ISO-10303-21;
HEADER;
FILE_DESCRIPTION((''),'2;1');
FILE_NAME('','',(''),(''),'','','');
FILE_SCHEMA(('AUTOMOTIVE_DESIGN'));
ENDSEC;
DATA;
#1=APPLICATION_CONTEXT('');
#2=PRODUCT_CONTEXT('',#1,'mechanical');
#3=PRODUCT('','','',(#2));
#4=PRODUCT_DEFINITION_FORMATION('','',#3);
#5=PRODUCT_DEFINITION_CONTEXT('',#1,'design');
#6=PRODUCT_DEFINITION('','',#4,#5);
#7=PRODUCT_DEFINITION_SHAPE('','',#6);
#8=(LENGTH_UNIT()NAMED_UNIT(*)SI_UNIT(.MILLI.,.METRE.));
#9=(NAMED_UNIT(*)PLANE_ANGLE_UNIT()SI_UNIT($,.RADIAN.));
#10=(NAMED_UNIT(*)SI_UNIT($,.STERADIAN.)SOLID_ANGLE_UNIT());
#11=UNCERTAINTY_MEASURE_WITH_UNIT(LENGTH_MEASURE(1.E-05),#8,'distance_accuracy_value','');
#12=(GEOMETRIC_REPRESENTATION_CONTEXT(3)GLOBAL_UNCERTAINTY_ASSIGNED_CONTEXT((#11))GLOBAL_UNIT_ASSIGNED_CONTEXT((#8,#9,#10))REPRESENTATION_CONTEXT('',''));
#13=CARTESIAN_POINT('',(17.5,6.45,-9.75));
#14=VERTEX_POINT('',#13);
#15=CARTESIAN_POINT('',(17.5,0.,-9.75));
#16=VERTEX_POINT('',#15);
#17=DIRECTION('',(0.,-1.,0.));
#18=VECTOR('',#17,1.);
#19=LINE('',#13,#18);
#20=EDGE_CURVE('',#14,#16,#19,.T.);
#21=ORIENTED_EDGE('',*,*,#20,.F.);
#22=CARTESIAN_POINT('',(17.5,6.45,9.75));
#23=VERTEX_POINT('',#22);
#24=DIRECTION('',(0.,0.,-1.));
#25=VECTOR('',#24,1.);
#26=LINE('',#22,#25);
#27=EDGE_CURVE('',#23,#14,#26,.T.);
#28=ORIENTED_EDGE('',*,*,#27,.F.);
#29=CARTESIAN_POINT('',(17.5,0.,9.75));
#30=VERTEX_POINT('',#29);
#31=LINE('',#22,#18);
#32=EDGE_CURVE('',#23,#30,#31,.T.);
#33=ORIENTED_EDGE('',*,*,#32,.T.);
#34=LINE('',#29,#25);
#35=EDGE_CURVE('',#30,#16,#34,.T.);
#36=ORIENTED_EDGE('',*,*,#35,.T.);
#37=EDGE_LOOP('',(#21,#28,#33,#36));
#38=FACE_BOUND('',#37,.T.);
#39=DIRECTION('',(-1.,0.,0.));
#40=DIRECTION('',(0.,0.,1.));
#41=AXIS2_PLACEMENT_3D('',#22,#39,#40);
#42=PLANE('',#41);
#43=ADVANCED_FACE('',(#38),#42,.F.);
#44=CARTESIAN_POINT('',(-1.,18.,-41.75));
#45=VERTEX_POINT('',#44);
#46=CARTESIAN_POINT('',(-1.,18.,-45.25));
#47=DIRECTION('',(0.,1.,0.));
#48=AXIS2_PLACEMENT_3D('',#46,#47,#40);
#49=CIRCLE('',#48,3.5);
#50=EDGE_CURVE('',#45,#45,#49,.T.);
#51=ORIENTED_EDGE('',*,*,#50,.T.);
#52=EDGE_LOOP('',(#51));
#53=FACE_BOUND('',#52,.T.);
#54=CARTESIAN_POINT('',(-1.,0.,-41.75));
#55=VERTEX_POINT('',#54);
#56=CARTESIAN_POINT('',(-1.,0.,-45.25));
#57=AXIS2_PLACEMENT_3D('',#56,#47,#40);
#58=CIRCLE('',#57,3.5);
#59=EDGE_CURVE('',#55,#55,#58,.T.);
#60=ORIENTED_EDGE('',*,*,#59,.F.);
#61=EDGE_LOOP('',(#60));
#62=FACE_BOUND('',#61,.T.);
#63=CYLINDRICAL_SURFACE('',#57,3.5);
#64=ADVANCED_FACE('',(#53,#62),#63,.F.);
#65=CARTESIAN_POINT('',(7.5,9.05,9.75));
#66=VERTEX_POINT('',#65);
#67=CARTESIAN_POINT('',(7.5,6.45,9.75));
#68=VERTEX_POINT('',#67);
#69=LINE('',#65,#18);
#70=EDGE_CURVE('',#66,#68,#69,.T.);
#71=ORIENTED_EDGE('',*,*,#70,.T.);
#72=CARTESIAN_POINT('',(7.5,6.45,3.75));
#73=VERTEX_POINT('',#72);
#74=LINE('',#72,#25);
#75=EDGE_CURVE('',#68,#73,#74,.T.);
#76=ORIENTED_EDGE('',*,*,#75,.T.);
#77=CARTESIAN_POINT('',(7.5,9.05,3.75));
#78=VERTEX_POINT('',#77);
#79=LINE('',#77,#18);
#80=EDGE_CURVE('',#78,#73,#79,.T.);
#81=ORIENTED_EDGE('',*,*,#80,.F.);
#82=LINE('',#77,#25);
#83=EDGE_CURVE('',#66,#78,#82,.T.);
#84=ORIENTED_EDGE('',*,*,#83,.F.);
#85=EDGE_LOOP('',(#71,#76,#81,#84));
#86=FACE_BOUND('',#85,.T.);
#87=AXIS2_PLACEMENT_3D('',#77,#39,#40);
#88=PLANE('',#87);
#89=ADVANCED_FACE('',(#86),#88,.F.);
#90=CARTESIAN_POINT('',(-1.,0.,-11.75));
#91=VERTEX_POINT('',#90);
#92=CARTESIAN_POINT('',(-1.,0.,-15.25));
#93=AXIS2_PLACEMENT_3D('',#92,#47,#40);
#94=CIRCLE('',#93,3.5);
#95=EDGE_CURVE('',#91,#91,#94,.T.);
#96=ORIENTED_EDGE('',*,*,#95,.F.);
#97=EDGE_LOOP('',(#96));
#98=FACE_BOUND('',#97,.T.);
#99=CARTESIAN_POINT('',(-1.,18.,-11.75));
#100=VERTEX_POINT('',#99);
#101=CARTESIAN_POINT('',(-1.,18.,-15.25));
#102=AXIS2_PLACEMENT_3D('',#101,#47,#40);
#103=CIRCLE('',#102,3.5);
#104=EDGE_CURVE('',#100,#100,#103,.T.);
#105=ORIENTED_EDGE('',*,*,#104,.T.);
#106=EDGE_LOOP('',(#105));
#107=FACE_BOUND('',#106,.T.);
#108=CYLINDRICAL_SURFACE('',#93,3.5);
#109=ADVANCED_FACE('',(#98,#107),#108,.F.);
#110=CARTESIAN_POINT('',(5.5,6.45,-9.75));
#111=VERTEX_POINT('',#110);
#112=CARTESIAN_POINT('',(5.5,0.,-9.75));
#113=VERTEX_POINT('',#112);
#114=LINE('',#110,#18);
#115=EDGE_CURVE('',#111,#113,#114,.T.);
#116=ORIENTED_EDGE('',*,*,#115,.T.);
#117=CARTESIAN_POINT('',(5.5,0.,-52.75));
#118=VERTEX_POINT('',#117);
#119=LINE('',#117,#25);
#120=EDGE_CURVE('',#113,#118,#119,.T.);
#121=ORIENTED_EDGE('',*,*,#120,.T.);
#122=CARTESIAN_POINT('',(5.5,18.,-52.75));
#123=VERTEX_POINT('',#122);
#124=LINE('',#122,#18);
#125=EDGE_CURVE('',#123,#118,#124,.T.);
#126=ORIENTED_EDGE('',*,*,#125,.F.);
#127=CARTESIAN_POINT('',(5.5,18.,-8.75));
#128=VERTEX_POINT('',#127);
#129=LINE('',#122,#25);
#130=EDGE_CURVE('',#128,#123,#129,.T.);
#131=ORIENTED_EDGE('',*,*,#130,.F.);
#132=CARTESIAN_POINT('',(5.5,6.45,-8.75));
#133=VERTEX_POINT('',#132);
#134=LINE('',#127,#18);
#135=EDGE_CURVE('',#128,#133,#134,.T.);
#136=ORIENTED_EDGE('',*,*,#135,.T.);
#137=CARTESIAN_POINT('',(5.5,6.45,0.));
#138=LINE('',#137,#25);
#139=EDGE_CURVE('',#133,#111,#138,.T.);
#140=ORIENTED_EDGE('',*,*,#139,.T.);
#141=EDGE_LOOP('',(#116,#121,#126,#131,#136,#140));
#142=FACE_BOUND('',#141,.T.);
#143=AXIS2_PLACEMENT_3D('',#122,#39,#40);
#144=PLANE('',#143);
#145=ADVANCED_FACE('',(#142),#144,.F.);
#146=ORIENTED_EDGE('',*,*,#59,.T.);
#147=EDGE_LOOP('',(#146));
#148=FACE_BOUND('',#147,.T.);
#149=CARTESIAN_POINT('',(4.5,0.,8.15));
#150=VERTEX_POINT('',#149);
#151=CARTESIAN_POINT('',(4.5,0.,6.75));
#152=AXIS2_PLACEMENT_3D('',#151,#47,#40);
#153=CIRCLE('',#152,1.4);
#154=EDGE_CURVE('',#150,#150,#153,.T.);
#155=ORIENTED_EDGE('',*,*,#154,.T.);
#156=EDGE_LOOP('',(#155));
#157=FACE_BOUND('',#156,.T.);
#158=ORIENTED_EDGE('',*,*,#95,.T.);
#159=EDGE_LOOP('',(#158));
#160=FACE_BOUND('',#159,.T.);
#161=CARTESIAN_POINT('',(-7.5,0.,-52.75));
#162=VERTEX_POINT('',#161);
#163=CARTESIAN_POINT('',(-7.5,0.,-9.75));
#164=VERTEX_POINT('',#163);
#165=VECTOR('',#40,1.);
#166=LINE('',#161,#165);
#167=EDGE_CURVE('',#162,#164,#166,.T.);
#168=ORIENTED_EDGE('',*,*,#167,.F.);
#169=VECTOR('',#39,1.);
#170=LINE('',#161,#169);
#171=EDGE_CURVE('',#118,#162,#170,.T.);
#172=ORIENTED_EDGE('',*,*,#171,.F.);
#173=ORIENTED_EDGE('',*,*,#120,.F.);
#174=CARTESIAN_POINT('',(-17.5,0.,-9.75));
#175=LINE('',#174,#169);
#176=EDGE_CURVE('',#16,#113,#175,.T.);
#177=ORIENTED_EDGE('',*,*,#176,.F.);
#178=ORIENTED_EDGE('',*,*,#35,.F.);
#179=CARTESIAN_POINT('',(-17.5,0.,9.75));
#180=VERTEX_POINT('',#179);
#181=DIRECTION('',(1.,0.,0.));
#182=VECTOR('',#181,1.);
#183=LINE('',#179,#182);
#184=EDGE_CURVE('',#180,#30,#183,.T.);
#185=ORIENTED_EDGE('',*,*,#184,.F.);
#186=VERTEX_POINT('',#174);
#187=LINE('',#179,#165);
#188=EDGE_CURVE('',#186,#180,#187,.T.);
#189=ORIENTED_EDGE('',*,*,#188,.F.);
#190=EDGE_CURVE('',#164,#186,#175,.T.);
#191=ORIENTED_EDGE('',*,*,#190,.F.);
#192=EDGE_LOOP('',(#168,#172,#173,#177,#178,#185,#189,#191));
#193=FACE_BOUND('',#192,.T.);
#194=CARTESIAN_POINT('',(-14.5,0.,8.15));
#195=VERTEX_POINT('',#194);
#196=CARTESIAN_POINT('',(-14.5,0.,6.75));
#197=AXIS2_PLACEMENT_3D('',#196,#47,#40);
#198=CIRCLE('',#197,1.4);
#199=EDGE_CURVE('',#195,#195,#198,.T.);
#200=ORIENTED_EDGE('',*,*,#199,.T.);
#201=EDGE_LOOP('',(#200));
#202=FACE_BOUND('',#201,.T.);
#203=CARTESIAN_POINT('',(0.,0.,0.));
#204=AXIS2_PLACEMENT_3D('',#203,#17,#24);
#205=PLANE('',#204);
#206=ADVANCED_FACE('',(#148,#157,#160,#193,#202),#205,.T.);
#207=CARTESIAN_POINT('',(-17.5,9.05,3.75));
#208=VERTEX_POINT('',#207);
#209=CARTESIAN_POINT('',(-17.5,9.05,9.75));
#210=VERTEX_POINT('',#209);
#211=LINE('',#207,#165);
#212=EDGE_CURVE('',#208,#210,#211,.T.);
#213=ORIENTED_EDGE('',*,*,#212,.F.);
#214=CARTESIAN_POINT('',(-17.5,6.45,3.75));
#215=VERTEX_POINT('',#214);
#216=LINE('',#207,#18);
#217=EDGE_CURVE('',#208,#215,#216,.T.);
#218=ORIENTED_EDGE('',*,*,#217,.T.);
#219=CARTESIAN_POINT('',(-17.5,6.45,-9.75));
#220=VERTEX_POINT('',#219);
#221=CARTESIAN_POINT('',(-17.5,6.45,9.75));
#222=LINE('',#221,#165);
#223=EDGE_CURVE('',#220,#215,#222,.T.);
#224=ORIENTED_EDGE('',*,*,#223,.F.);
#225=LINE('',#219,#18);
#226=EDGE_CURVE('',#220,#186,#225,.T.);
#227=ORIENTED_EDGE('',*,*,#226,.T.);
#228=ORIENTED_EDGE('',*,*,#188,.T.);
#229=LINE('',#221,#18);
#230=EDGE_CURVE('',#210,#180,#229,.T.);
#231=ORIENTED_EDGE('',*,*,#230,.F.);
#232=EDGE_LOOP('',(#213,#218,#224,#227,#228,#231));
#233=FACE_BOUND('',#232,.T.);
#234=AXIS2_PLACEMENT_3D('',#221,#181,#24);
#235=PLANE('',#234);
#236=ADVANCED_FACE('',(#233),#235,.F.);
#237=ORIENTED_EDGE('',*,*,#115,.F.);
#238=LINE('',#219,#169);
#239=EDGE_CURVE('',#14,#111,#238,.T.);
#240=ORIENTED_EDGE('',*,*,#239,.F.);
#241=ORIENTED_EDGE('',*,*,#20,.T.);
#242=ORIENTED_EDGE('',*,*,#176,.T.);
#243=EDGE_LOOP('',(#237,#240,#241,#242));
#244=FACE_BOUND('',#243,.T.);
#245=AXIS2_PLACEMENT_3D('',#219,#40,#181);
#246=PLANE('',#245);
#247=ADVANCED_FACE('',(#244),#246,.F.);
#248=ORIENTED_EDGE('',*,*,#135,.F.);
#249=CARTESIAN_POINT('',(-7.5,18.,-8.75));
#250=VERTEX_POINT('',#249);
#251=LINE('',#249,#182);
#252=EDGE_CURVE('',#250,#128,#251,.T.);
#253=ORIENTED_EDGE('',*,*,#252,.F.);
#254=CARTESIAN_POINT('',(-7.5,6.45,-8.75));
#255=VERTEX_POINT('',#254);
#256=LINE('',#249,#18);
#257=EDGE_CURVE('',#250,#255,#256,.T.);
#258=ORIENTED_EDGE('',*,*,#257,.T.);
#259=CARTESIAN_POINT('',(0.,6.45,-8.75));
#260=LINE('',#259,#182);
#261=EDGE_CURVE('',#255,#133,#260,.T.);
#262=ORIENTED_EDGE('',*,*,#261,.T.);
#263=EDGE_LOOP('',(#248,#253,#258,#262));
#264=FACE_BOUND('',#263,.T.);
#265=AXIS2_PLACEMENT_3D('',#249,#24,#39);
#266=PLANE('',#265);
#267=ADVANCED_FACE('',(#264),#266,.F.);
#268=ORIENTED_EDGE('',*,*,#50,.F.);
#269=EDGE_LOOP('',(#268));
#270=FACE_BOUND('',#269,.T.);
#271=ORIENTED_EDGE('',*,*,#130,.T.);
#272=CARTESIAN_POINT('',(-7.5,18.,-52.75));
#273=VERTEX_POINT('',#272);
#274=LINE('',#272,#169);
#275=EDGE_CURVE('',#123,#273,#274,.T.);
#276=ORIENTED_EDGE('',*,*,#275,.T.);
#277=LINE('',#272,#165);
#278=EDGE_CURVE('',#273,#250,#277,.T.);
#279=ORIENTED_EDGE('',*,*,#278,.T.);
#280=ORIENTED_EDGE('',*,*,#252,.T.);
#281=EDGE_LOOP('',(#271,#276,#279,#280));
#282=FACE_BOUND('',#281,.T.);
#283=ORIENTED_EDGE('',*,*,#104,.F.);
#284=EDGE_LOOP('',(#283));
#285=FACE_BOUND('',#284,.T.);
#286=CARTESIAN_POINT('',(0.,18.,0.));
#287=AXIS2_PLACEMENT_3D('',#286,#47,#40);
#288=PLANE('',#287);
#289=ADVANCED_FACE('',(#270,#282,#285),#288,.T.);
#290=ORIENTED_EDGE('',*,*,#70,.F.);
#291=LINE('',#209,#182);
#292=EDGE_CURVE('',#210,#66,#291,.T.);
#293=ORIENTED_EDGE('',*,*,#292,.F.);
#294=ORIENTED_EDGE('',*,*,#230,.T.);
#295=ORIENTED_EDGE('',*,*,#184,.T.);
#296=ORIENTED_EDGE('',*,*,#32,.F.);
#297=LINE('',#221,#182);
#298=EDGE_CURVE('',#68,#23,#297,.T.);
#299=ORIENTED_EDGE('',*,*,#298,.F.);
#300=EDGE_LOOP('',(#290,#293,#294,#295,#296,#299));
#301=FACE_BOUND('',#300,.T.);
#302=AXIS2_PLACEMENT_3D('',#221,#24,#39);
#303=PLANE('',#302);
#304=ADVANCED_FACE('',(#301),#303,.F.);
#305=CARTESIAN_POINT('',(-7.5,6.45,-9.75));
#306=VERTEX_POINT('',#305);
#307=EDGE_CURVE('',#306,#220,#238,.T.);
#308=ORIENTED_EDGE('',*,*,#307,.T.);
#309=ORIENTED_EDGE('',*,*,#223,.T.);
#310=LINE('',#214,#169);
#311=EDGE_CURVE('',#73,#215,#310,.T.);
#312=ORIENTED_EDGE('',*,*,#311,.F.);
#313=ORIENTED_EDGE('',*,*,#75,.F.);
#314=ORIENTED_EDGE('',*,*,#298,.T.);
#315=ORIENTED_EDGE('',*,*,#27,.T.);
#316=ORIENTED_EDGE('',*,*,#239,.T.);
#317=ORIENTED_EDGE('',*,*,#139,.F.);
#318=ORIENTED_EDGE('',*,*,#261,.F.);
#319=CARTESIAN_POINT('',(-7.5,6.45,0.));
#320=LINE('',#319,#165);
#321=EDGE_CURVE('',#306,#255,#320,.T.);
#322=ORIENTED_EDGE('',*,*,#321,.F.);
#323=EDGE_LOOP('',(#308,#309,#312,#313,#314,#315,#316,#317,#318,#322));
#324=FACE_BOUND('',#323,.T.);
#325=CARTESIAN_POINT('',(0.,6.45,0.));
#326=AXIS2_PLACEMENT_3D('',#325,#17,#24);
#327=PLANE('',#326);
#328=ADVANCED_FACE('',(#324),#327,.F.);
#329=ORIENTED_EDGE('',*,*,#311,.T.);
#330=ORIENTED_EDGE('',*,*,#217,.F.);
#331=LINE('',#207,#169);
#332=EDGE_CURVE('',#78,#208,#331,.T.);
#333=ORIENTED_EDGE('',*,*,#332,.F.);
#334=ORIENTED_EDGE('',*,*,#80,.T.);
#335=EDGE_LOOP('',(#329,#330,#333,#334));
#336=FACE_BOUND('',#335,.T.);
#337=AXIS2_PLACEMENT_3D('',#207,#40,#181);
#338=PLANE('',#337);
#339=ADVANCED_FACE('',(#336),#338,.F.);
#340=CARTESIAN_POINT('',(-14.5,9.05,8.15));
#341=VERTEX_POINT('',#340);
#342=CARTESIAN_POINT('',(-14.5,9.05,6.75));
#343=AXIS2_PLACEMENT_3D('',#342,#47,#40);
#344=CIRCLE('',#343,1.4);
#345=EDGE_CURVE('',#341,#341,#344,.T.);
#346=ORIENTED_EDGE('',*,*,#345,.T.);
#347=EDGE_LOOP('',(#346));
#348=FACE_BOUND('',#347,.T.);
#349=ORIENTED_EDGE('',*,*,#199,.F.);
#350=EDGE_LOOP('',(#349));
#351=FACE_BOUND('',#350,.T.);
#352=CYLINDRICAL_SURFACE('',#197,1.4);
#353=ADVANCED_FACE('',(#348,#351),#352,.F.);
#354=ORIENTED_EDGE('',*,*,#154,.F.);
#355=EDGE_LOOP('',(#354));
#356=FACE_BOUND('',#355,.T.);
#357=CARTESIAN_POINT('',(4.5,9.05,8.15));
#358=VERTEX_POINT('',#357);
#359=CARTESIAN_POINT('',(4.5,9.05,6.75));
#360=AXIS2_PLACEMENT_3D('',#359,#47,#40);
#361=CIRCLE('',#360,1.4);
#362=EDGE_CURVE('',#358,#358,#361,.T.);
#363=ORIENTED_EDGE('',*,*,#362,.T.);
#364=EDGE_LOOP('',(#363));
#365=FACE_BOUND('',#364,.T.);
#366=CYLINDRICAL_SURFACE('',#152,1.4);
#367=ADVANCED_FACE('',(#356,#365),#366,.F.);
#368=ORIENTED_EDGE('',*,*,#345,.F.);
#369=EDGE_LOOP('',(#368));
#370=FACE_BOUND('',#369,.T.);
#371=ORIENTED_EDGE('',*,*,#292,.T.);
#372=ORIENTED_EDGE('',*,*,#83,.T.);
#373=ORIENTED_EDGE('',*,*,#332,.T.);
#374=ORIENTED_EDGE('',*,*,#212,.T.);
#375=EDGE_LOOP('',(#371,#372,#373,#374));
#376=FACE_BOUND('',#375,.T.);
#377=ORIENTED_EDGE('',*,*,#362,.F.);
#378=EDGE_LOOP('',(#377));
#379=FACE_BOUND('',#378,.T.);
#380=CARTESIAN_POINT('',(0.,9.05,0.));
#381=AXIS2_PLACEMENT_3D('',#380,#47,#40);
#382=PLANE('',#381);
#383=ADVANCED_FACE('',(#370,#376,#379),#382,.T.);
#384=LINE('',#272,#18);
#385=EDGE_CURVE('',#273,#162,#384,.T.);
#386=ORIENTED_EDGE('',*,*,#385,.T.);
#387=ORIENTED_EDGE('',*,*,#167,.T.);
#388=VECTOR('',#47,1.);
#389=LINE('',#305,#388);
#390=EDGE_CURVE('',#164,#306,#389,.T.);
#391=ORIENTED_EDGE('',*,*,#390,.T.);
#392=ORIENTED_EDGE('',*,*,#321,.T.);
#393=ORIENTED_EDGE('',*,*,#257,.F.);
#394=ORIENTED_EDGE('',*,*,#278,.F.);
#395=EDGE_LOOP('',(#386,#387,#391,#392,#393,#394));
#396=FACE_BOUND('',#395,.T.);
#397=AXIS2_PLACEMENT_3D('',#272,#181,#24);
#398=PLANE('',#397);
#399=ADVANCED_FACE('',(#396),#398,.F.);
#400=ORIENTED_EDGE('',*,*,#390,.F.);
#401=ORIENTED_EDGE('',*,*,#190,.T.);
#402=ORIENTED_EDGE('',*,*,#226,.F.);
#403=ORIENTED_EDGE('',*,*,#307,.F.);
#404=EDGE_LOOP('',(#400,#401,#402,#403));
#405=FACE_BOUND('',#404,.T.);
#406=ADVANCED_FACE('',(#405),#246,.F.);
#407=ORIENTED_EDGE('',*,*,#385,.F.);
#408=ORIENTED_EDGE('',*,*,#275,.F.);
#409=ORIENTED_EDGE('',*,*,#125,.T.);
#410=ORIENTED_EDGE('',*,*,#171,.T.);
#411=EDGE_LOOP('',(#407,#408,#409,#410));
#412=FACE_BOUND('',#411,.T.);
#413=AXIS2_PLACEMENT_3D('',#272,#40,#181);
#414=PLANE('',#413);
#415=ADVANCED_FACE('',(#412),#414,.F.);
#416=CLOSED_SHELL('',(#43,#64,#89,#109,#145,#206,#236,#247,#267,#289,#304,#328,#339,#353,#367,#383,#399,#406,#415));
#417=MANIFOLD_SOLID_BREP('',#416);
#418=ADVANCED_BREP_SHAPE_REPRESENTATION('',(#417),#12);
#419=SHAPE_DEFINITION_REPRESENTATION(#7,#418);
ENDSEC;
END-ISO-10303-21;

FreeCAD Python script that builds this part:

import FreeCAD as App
import Part
import Sketcher
from FreeCAD import Vector


def add_polygon(sketch, points):
    """Adds a closed chain of lines whose ends are joined by coincident constraints."""
    first, n = sketch.GeometryCount, len(points)
    for a, b in zip(points, points[1:] + points[:1]):
        sketch.addGeometry(Part.LineSegment(App.Vector(*a, 0), App.Vector(*b, 0)), False)
    for i in range(n):
        sketch.addConstraint(Sketcher.Constraint("Coincident", first + i, 2, first + (i + 1) % n, 1))

doc = App.newDocument("Part")
params = doc.addObject("Spreadsheet::Sheet", "Params")
for row, (alias, value) in enumerate([
    ("sketch1_width", "35 mm"),
    ("sketch1_height", "19.5 mm"),
    ("pad1_length", "6.45 mm"),
    ("sketch2_width", "13 mm"),
    ("sketch2_height", "44 mm"),
    ("pad2_length", "18 mm"),
    ("sketch3_diameter", "7 mm"),
    ("sketch4_width", "25 mm"),
    ("sketch4_height", "6 mm"),
    ("pad3_length", "2.6 mm"),
    ("sketch5_diameter", "2.8 mm"),
], start=1):
    params.set(f"A{row}", alias)
    params.set(f"B{row}", "=" + value)
    params.setAlias(f"B{row}", alias)

body = doc.addObject("PartDesign::Body", "Body")

# Sketch on XZ plane
sketch1 = body.newObject("Sketcher::SketchObject", "Sketch")
sketch1.AttachmentSupport = (doc.getObject("XZ_Plane"), [""])
sketch1.MapMode = "FlatFace"
add_polygon(sketch1, [(-18, -10), (-18, 10), (18, 10), (18, -10)])  # lines 0-3
sketch1.addConstraint([
    Sketcher.Constraint("Vertical", 0),
    Sketcher.Constraint("Horizontal", 1),
    Sketcher.Constraint("Vertical", 2),
    Sketcher.Constraint("Horizontal", 3),
    Sketcher.Constraint("Symmetric", 0, 2, 2, 2, -1, 1),
    Sketcher.Constraint("DistanceX", 1, 1, 1, 2, 35.0),
    Sketcher.Constraint("DistanceY", 0, 1, 0, 2, 19.5),
])
sketch1.setExpression("Constraints[9]", "Params.sketch1_width")
sketch1.setExpression("Constraints[10]", "Params.sketch1_height")
pad1 = body.newObject("PartDesign::Pad", "Pad")
pad1.Profile = sketch1
pad1.setExpression("Length", "Params.pad1_length")
pad1.Reversed = True

# Sketch on XZ plane
sketch2 = body.newObject("Sketcher::SketchObject", "Sketch001")
sketch2.AttachmentSupport = (doc.getObject("XZ_Plane"), [""])
sketch2.MapMode = "FlatFace"
add_polygon(sketch2, [(-8, -53), (-8, -9), (6, -9), (6, -53)])  # lines 0-3
sketch2.addConstraint([
    Sketcher.Constraint("Vertical", 0),
    Sketcher.Constraint("Horizontal", 1),
    Sketcher.Constraint("Vertical", 2),
    Sketcher.Constraint("Horizontal", 3),
    Sketcher.Constraint("DistanceX", 1, 1, 1, 2, 13.0),
    Sketcher.Constraint("DistanceY", 0, 1, 0, 2, 44.0),
    Sketcher.Constraint("DistanceX", 0, 2, -1, 1, 7.5),
    Sketcher.Constraint("DistanceY", 0, 2, -1, 1, 8.75),
])
sketch2.setExpression("Constraints[8]", "Params.sketch2_width")
sketch2.setExpression("Constraints[9]", "Params.sketch2_height")
pad2 = body.newObject("PartDesign::Pad", "Pad001")
pad2.Profile = sketch2
pad2.setExpression("Length", "Params.pad2_length")
pad2.Reversed = True

# Sketch on XZ plane
sketch3 = body.newObject("Sketcher::SketchObject", "Sketch002")
sketch3.AttachmentSupport = (doc.getObject("XZ_Plane"), [""])
sketch3.MapMode = "FlatFace"
sketch3.AttachmentOffset = App.Placement(Vector(0, 0, -18), App.Rotation())
sketch3.addGeometry([
    Part.Circle(Vector(-1, -45.2, 0), Vector(0, 0, 1), 3.5),
    Part.Circle(Vector(-1, -15.2, 0), Vector(0, 0, 1), 3.5),
], False)
sketch3.addConstraint([
    Sketcher.Constraint("Equal", 0, 1),
    Sketcher.Constraint("Vertical", 0, 3, 1, 3),
    Sketcher.Constraint("Diameter", 0, 7.0),
    Sketcher.Constraint("DistanceX", 0, 3, -1, 1, 1.0),
    Sketcher.Constraint("DistanceY", 0, 3, 1, 3, 30.0),
    Sketcher.Constraint("DistanceY", 0, 3, -1, 1, 45.25),
])
sketch3.setExpression("Constraints[2]", "Params.sketch3_diameter")
pocket1 = body.newObject("PartDesign::Pocket", "Pocket")
pocket1.Profile = sketch3
pocket1.Type = "ThroughAll"
pocket1.Reversed = True

# Sketch on XZ plane
sketch4 = body.newObject("Sketcher::SketchObject", "Sketch003")
sketch4.AttachmentSupport = (doc.getObject("XZ_Plane"), [""])
sketch4.MapMode = "FlatFace"
sketch4.AttachmentOffset = App.Placement(Vector(0, 0, -6.45), App.Rotation())
add_polygon(sketch4, [(-18, 4), (-18, 10), (8, 10), (8, 4)])  # lines 0-3
sketch4.addConstraint([
    Sketcher.Constraint("Vertical", 0),
    Sketcher.Constraint("Horizontal", 1),
    Sketcher.Constraint("Vertical", 2),
    Sketcher.Constraint("Horizontal", 3),
    Sketcher.Constraint("DistanceX", 1, 1, 1, 2, 25.0),
    Sketcher.Constraint("DistanceY", 0, 1, 0, 2, 6.0),
    Sketcher.Constraint("DistanceX", 0, 2, -1, 1, 17.5),
    Sketcher.Constraint("DistanceY", -1, 1, 0, 2, 9.75),
])
sketch4.setExpression("Constraints[8]", "Params.sketch4_width")
sketch4.setExpression("Constraints[9]", "Params.sketch4_height")
pad3 = body.newObject("PartDesign::Pad", "Pad002")
pad3.Profile = sketch4
pad3.setExpression("Length", "Params.pad3_length")
pad3.Reversed = True

# Sketch on XZ plane
sketch5 = body.newObject("Sketcher::SketchObject", "Sketch004")
sketch5.AttachmentSupport = (doc.getObject("XZ_Plane"), [""])
sketch5.MapMode = "FlatFace"
sketch5.AttachmentOffset = App.Placement(Vector(0, 0, -9.05), App.Rotation())
sketch5.addGeometry([
    Part.Circle(Vector(-14.5, 6.8, 0), Vector(0, 0, 1), 1.4),
    Part.Circle(Vector(4.5, 6.8, 0), Vector(0, 0, 1), 1.4),
], False)
sketch5.addConstraint([
    Sketcher.Constraint("Equal", 0, 1),
    Sketcher.Constraint("Horizontal", 0, 3, 1, 3),
    Sketcher.Constraint("Diameter", 0, 2.8),
    Sketcher.Constraint("DistanceX", 0, 3, 1, 3, 19.0),
    Sketcher.Constraint("DistanceX", 0, 3, -1, 1, 14.5),
    Sketcher.Constraint("DistanceY", -1, 1, 0, 3, 6.75),
])
sketch5.setExpression("Constraints[2]", "Params.sketch5_diameter")
pocket2 = body.newObject("PartDesign::Pocket", "Pocket001")
pocket2.Profile = sketch5
pocket2.Type = "ThroughAll"
pocket2.Reversed = True

doc.recompute()
